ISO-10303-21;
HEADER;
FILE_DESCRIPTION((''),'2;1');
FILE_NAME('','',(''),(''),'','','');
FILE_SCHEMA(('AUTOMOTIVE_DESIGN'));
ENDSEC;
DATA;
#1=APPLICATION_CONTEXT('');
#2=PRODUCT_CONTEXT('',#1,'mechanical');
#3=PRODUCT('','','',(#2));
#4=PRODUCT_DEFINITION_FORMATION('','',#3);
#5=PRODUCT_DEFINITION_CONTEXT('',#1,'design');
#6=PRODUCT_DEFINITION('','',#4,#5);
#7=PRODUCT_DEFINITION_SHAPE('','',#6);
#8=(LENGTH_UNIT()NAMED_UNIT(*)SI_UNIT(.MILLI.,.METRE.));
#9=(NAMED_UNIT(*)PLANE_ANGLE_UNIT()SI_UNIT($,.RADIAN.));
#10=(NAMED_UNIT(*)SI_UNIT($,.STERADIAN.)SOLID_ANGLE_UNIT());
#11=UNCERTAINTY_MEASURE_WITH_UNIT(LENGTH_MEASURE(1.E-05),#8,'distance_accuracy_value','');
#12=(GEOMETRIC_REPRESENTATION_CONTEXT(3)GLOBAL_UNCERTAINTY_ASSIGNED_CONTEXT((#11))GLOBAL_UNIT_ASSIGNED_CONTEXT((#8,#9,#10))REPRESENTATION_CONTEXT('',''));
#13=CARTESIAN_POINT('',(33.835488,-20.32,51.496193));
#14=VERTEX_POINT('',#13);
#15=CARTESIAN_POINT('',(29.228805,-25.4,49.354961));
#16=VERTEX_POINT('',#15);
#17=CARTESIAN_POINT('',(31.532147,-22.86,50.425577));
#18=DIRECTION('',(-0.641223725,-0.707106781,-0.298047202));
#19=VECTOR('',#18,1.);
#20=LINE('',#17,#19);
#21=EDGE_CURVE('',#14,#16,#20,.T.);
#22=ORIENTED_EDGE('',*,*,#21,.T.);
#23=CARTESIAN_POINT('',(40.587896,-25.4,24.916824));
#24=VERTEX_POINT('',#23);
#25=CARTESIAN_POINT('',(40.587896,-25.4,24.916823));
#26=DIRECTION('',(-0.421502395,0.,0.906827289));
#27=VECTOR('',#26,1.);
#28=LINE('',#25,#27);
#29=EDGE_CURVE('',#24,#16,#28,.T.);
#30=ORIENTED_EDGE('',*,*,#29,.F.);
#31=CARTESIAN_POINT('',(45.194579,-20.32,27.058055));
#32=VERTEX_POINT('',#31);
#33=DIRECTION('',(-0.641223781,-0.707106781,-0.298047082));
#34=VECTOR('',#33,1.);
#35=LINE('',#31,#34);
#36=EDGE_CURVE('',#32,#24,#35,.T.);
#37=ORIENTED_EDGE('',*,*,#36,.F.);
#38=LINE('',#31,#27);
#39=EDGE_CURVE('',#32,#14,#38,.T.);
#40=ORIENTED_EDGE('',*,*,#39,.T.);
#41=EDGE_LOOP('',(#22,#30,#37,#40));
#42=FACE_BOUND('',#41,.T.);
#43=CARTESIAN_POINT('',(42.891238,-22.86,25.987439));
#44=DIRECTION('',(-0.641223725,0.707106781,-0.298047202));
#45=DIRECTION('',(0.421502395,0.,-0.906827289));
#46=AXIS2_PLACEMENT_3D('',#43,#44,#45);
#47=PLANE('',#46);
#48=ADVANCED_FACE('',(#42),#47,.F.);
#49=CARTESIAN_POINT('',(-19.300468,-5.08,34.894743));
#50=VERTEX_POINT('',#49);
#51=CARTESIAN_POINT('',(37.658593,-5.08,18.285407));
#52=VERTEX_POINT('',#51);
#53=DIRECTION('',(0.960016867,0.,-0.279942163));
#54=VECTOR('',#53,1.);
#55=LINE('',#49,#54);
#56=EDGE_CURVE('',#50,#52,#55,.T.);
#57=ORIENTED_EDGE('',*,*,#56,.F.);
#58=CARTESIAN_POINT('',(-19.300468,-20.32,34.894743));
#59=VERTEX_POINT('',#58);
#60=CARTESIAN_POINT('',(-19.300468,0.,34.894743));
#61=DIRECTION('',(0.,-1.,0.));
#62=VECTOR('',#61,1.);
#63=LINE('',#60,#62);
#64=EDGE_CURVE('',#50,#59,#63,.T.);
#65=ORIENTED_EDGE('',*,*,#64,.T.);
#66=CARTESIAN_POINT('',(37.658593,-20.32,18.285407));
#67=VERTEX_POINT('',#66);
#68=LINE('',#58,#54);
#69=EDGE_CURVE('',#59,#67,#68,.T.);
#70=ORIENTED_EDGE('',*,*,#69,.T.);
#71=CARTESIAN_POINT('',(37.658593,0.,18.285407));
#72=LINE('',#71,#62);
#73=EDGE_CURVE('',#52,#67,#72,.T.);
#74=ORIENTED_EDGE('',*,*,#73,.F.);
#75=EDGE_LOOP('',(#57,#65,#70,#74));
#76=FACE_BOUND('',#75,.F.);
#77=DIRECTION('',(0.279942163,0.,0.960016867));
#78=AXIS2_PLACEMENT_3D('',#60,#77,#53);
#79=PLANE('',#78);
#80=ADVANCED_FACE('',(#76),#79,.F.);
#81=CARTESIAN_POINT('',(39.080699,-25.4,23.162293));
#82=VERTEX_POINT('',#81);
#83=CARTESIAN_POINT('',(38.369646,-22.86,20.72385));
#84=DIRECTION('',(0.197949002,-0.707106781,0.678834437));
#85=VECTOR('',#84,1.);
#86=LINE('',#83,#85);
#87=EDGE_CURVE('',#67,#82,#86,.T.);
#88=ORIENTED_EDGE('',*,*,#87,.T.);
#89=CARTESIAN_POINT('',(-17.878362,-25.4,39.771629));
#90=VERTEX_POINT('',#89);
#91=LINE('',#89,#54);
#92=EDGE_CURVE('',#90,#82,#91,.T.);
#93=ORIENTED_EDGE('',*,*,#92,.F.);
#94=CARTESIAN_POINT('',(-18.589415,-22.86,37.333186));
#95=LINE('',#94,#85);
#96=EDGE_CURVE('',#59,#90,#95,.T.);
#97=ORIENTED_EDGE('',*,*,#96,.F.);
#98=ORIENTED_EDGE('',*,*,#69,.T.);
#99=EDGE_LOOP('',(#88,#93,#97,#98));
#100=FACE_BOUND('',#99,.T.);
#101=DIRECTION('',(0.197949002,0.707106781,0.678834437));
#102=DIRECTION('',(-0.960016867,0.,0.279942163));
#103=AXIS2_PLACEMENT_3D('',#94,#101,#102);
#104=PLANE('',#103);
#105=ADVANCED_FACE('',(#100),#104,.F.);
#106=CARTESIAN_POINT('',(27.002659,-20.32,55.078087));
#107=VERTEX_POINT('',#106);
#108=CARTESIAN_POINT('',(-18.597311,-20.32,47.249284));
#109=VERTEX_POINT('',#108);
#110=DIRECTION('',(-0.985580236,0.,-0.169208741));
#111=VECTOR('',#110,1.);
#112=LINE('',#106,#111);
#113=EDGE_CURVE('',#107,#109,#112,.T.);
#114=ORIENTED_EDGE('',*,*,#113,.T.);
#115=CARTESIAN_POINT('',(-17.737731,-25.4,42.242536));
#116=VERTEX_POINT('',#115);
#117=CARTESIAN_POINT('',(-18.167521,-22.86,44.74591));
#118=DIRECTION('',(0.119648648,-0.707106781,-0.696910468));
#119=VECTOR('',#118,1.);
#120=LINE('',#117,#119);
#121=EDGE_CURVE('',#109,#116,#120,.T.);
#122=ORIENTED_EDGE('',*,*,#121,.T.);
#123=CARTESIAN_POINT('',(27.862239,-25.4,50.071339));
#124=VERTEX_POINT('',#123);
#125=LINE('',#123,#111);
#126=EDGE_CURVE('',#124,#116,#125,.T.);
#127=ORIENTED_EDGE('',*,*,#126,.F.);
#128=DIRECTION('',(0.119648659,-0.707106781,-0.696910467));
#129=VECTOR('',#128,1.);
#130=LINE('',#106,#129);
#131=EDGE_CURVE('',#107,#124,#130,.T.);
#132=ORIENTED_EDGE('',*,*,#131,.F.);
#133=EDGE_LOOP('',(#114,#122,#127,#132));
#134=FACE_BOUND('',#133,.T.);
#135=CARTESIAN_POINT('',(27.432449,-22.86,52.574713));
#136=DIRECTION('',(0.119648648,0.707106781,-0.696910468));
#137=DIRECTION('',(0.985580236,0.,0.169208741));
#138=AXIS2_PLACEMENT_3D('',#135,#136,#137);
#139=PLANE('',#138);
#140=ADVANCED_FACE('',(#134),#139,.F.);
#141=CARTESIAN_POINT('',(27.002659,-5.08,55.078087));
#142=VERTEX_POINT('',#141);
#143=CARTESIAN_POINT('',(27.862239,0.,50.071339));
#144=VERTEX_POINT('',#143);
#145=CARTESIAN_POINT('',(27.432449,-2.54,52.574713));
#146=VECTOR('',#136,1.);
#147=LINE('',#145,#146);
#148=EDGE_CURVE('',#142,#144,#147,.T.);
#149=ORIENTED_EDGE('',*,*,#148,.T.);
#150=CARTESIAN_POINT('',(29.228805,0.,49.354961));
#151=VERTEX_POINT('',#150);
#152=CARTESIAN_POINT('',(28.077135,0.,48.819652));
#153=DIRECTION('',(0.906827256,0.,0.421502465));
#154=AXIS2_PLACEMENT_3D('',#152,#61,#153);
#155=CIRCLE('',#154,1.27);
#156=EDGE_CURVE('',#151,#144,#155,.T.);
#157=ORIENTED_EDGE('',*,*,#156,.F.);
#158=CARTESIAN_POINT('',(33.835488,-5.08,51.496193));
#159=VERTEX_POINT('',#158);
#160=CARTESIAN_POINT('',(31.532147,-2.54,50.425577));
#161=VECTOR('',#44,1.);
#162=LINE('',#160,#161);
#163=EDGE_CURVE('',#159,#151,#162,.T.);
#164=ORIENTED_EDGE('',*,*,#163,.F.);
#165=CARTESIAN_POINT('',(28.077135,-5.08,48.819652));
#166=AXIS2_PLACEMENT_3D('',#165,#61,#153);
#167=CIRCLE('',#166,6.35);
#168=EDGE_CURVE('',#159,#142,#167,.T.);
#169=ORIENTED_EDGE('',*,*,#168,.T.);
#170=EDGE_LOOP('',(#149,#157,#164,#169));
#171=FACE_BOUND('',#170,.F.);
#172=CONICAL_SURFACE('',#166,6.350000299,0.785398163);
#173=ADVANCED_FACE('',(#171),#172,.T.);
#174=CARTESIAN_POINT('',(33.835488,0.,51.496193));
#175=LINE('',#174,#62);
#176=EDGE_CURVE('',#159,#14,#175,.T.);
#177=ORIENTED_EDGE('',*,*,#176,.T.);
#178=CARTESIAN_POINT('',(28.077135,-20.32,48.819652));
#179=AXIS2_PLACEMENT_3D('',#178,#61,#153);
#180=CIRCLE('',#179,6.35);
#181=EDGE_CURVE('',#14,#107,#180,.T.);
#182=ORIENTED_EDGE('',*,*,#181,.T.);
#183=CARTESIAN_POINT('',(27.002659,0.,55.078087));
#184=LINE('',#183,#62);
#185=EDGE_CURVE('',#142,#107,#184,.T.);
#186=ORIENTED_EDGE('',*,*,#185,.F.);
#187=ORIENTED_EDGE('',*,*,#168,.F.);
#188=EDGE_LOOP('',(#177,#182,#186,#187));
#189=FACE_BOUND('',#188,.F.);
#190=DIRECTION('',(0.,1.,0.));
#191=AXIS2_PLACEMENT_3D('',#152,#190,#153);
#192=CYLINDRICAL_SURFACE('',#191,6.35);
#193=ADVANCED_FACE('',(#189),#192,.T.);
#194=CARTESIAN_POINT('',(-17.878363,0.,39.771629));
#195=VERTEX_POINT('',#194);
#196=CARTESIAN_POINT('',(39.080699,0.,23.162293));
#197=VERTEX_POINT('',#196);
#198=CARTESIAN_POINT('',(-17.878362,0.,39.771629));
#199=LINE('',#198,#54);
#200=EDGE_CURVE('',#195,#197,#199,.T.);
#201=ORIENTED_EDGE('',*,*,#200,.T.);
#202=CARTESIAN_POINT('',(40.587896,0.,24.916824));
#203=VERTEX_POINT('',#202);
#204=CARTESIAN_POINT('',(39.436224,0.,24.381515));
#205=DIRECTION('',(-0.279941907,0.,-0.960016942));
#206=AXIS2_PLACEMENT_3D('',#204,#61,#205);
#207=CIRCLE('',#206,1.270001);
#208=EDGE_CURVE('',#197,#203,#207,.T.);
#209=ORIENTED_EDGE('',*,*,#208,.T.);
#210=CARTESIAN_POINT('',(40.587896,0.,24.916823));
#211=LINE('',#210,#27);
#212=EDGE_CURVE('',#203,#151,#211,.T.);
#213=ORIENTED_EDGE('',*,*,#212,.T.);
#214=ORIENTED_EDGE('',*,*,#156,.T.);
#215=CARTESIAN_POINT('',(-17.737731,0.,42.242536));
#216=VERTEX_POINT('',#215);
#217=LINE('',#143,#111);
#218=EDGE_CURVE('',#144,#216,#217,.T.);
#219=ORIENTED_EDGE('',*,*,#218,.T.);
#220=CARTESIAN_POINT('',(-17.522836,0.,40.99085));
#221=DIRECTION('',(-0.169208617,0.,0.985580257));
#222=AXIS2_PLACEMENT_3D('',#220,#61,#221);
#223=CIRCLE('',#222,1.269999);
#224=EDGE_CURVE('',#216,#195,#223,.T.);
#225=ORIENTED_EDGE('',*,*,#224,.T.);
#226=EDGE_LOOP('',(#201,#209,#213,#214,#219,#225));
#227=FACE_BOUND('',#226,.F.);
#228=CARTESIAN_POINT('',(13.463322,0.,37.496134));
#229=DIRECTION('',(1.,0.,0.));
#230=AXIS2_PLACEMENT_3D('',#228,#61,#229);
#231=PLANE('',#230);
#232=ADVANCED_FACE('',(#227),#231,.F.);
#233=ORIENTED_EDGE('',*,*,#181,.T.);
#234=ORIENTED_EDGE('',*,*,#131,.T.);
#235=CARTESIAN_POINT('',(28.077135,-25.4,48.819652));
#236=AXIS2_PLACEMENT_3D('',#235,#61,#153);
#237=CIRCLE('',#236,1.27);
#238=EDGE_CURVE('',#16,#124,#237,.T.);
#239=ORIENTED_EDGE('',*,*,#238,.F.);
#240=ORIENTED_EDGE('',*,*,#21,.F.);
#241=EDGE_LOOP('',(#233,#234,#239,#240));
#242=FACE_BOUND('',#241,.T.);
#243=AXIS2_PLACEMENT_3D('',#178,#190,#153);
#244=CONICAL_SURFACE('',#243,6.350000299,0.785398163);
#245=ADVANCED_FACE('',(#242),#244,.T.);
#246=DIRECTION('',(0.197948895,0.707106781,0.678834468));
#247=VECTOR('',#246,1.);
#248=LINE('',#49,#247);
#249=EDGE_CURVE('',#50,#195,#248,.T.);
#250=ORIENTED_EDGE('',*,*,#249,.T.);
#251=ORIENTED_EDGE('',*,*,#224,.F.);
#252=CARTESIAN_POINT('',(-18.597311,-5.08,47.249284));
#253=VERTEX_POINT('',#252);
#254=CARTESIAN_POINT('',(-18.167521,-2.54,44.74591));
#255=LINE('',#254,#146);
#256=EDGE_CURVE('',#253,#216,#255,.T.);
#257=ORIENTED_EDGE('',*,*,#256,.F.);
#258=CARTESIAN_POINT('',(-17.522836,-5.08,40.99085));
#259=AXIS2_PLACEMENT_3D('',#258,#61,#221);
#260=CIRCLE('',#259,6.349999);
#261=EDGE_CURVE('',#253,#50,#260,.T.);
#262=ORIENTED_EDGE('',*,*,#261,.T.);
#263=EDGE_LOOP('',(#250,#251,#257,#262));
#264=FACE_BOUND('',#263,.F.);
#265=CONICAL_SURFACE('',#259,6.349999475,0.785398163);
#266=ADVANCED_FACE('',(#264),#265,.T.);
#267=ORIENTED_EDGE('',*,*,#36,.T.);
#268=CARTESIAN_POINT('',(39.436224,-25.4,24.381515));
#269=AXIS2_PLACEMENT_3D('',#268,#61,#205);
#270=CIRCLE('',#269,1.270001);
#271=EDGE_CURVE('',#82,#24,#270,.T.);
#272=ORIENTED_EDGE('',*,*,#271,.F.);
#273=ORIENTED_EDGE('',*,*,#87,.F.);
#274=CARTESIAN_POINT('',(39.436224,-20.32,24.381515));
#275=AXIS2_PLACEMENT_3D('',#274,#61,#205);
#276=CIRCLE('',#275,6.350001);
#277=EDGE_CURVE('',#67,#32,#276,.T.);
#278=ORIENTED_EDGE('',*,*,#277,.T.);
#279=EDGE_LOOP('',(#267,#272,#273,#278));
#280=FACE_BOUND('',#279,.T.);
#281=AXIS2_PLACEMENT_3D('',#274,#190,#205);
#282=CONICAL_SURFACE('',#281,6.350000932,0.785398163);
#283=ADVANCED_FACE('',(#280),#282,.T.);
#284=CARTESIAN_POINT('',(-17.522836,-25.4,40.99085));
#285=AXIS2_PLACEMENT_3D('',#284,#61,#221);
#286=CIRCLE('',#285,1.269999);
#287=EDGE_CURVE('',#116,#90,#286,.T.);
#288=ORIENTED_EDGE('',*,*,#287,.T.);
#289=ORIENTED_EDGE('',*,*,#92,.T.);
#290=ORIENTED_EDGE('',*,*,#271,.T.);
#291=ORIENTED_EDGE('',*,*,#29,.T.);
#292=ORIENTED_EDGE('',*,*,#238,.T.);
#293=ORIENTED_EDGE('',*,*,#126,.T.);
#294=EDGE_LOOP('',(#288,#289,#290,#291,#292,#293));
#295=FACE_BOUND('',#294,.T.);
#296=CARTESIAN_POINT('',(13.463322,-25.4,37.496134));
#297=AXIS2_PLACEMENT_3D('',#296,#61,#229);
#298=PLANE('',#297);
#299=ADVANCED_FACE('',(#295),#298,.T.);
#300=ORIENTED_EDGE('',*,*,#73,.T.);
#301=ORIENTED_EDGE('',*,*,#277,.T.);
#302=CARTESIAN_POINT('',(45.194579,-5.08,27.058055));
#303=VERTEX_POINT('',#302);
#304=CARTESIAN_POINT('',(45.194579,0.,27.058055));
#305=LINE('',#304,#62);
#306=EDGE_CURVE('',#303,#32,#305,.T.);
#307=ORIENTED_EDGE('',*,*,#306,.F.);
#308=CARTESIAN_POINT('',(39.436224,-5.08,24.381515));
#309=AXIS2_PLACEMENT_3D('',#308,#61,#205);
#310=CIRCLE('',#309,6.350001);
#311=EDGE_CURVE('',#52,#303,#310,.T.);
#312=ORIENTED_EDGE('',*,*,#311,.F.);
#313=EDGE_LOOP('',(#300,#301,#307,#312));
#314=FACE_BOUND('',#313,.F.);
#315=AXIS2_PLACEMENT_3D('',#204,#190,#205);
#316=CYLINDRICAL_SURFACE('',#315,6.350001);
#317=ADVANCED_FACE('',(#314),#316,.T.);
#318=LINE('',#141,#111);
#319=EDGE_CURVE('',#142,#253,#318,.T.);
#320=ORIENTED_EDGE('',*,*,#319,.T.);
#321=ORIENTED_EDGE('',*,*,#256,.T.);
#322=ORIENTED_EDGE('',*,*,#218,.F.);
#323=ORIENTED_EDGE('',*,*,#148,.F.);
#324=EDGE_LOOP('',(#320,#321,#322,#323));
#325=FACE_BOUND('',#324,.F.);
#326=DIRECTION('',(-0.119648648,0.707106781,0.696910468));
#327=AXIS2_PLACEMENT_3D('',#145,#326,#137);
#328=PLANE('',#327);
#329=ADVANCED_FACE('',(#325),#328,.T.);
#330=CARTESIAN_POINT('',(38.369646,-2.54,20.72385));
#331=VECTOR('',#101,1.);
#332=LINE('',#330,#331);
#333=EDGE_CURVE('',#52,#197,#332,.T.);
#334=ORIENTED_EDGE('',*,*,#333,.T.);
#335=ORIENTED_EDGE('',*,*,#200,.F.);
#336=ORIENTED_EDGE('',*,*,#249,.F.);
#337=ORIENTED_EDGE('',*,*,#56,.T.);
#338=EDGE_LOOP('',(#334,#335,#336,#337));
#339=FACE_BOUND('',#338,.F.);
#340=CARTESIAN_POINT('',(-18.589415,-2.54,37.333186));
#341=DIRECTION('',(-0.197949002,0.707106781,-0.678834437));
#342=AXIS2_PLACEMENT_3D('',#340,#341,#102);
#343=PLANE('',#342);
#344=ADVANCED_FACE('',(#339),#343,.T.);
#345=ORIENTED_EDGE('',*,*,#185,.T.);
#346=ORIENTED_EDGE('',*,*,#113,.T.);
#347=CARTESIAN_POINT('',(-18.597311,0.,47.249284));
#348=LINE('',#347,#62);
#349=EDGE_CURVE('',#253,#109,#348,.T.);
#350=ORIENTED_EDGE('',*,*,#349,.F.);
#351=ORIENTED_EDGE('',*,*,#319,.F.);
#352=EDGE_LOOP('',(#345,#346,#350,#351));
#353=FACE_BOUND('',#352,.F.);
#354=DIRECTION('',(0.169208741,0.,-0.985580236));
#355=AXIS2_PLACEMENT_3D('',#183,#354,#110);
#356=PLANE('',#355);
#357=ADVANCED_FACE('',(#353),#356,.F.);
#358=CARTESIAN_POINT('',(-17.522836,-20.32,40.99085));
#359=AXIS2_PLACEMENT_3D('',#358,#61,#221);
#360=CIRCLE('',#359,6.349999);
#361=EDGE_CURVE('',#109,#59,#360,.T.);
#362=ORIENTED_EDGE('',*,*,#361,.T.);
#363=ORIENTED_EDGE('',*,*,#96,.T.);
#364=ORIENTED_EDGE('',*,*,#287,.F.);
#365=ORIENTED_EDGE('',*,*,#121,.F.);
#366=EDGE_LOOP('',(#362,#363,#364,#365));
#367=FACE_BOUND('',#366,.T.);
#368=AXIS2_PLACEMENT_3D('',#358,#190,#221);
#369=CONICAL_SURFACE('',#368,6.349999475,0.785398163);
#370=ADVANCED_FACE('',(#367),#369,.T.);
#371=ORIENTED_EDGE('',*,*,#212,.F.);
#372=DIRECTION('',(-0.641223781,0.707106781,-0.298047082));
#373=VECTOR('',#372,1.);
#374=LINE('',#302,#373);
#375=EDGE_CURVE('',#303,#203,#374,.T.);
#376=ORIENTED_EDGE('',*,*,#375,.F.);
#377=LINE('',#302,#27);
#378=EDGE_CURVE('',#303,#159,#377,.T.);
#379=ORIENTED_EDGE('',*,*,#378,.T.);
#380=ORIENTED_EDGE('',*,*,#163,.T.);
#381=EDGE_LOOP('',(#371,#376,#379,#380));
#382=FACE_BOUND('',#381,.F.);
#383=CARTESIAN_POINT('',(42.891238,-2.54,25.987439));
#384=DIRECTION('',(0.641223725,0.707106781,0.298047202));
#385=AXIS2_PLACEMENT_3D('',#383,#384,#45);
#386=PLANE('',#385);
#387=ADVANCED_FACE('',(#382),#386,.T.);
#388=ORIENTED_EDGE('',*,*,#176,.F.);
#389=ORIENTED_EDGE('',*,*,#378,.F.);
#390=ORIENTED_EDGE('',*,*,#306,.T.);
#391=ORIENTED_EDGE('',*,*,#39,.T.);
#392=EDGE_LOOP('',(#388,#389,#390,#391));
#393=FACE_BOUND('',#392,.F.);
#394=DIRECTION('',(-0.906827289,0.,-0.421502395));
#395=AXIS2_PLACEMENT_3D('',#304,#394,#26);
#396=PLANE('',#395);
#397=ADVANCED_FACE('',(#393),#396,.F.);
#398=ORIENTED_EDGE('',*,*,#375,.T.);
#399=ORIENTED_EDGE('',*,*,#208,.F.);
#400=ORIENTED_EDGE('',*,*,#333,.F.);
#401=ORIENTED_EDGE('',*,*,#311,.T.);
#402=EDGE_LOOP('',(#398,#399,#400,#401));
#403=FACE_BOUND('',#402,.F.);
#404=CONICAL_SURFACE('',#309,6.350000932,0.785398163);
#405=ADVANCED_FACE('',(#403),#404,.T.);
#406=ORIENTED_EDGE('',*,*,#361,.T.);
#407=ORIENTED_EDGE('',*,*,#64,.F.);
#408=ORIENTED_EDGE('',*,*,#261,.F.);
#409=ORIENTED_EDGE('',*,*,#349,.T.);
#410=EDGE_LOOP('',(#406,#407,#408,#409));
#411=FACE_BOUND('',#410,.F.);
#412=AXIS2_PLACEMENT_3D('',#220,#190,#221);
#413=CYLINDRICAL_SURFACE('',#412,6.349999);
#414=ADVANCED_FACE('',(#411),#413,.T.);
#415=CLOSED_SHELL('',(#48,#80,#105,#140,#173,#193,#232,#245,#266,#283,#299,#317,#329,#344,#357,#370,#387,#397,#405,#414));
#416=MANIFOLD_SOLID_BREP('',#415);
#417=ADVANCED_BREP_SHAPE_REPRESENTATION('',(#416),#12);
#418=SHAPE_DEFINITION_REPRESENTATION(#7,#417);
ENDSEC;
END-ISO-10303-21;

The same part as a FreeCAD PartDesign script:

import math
import FreeCAD as App
import Part
import Sketcher
Q = App.Units.Quantity


def edges_at(feature, points):
    """Names of the edges that pass closest to the given points."""
    edges = feature.Shape.Edges
    near = lambda p: min(range(len(edges)), key=lambda i: edges[i].distToShape(Part.Vertex(*p))[0])
    return sorted({f"Edge{near(p) + 1}" for p in points})

doc = App.newDocument("Part")
body = doc.addObject("PartDesign::Body", "Body")

# Sketch on XZ plane
sketch1 = body.newObject("Sketcher::SketchObject", "Sketch")
sketch1.AttachmentSupport = (doc.getObject("XZ_Plane"), [""])
sketch1.MapMode = "FlatFace"
sketch1.addGeometry([
    Part.ArcOfCircle(Part.Circle(App.Vector(-18, 41, 0), App.Vector(0, 0, 1), 6), math.radians(100), math.radians(254)),  # 0
    Part.LineSegment(App.Vector(-19, 35, 0), App.Vector(38, 18, 0)),  # 1
    Part.ArcOfCircle(Part.Circle(App.Vector(39, 24, 0), App.Vector(0, 0, 1), 6), math.radians(-106), math.radians(25)),  # 2
    Part.LineSegment(App.Vector(45, 27, 0), App.Vector(34, 51, 0)),  # 3
    Part.ArcOfCircle(Part.Circle(App.Vector(28, 49, 0), App.Vector(0, 0, 1), 6), math.radians(25), math.radians(100)),  # 4
    Part.LineSegment(App.Vector(27, 55, 0), App.Vector(-19, 47, 0)),  # 5
], False)
sketch1.addConstraint([
    Sketcher.Constraint("Tangent", 0, 2, 1, 1),
    Sketcher.Constraint("Tangent", 1, 2, 2, 1),
    Sketcher.Constraint("Tangent", 2, 2, 3, 1),
    Sketcher.Constraint("Tangent", 3, 2, 4, 1),
    Sketcher.Constraint("Tangent", 4, 2, 5, 1),
    Sketcher.Constraint("Tangent", 5, 2, 0, 1),
    Sketcher.Constraint("Equal", 0, 2),
    Sketcher.Constraint("Equal", 2, 4),
    Sketcher.Constraint("Radius", 0, Q("0.25 in")),
    Sketcher.Constraint("DistanceX", 5, 2, 3, 2, Q("52.432799 mm")),
    Sketcher.Constraint("Distance", 5, Q("46.267131 mm")),
    Sketcher.Constraint("DistanceY", -1, 1, 0, 3, Q("40.99085 mm")),
    Sketcher.Constraint("DistanceX", 0, 2, -1, 1, Q("19.300468 mm")),
    Sketcher.Constraint("DistanceX", -1, 1, 2, 2, Q("45.194579 mm")),
    Sketcher.Constraint("DistanceX", -1, 1, 4, 2, Q("27.002659 mm")),
])
pad1 = body.newObject("PartDesign::Pad", "Pad")
pad1.Profile = sketch1
pad1.Length = Q("1 in")
doc.recompute()

chamfer = body.newObject("PartDesign::Chamfer", "Chamfer")
chamfer.Base = (pad1, edges_at(pad1, [
    (4.203, 0, 51.164),
    (-23.863, 0, 41.352),
    (9.179, 0, 26.59),
    (44.253, 0, 20.244),
    (39.515, 0, 39.277),
    (31.025, 0, 54.444),
    (9.179, -25.4, 26.59),
]))
chamfer.Size = Q("0.2 in")

doc.recompute()
